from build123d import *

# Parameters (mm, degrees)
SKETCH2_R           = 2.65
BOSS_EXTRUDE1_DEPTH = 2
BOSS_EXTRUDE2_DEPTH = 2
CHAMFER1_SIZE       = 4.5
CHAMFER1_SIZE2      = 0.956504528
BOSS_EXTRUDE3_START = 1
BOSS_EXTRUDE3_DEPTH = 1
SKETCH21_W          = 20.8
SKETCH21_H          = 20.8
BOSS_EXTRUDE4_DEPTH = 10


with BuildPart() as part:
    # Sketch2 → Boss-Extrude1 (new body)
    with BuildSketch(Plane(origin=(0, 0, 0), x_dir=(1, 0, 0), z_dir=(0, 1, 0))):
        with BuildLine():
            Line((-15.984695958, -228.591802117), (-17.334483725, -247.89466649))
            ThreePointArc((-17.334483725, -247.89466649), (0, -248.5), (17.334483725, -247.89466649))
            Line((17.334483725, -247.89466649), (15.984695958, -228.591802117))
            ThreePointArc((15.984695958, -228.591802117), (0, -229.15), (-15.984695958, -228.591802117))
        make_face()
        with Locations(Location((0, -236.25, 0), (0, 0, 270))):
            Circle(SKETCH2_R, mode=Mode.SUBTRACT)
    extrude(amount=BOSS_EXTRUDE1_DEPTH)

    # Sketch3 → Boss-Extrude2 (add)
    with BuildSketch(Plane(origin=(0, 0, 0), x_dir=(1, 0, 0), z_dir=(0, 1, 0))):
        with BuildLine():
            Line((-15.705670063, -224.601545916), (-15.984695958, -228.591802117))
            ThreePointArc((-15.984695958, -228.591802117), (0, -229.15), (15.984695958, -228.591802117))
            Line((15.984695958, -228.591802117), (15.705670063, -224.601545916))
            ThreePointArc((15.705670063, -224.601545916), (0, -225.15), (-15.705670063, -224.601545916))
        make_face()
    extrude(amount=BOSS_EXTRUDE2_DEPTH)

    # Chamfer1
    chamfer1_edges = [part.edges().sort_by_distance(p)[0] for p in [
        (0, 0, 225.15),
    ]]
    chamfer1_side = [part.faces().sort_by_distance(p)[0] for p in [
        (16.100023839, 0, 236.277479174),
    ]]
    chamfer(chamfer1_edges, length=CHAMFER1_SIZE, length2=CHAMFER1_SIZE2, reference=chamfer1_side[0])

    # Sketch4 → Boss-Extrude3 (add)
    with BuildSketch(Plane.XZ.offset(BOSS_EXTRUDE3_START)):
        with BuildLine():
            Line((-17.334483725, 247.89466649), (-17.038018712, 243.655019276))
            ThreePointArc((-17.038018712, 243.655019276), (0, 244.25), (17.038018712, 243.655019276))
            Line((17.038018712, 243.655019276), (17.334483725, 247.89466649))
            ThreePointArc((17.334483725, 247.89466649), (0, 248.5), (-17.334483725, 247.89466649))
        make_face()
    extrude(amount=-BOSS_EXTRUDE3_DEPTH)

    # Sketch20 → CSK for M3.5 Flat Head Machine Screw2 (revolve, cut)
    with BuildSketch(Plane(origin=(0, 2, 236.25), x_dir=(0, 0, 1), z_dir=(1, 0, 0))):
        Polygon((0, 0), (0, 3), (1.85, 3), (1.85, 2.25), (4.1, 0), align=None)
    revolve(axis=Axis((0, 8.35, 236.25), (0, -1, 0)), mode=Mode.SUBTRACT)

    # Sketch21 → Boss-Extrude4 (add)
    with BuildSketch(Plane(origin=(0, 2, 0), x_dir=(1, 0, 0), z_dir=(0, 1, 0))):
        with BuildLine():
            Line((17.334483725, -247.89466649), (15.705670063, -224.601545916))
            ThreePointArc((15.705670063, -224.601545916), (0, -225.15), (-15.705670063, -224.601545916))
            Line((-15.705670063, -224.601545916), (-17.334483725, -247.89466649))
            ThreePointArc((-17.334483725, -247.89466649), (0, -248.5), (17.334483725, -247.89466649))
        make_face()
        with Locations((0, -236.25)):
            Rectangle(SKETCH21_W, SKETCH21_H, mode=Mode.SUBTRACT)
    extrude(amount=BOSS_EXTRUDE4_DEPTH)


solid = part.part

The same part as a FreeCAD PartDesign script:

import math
import FreeCAD as App
import Part
import Sketcher
Q = App.Units.Quantity


def edges_at(feature, points):
    """Names of the edges that pass closest to the given points."""
    edges = feature.Shape.Edges
    near = lambda p: min(range(len(edges)), key=lambda i: edges[i].distToShape(Part.Vertex(*p))[0])
    return sorted({f"Edge{near(p) + 1}" for p in points})

doc = App.newDocument("Part")
body = doc.addObject("PartDesign::Body", "Body")

sketch1 = doc.addObject("Sketcher::SketchObject", "Sketch")
body.addObject(sketch1)
sketch1.AttachmentSupport = (doc.XZ_Plane, [""])
sketch1.MapMode = "FlatFace"
sketch1.addGeometry([
    Part.LineSegment(App.Vector(-15.984696, 228.591802, 0), App.Vector(-17.334484, 247.894666, 0)),
    Part.ArcOfCircle(Part.Circle(App.Vector(0, 0, 0), App.Vector(0, 0, 1), 248.5), math.radians(86), math.radians(94)),
    Part.LineSegment(App.Vector(17.334484, 247.894666, 0), App.Vector(15.984696, 228.591802, 0)),
    Part.ArcOfCircle(Part.Circle(App.Vector(0, 0, 0), App.Vector(0, 0, 1), 229.15), math.radians(86), math.radians(94)),
    Part.Circle(App.Vector(0, 236.25, 0), App.Vector(0, 0, 1), 2.65),
], False)
sketch1.addConstraint([
    Sketcher.Constraint("Coincident", 0, 2, 1, 2),
    Sketcher.Constraint("Coincident", 1, 1, 2, 1),
    Sketcher.Constraint("Coincident", 2, 2, 3, 1),
    Sketcher.Constraint("Coincident", 3, 2, 0, 1),
    Sketcher.Constraint("Coincident", 1, 3, -1, 1),
    Sketcher.Constraint("Coincident", 3, 3, -1, 1),
    Sketcher.Constraint("PointOnObject", 4, 3, -2),
    Sketcher.Constraint("Horizontal", 0, 2, 1, 1),
    Sketcher.Constraint("Horizontal", 2, 2, 3, 2),
    Sketcher.Constraint("Diameter", 4, 5.3),
    Sketcher.Constraint("Radius", 1, 248.5),
    Sketcher.Constraint("Angle", 0, Q("94 deg")),
    Sketcher.Constraint("Radius", 3, 229.15),
    Sketcher.Constraint("DistanceY", -1, 1, 4, 3, 236.25),
    Sketcher.Constraint("DistanceX", 0, 2, 2, 2, 33.31918),
])
pad1 = doc.addObject("PartDesign::Pad", "Pad")
body.addObject(pad1)
pad1.Profile = sketch1
pad1.Length = 2
pad1.Reversed = True

sketch2 = doc.addObject("Sketcher::SketchObject", "Sketch001")
body.addObject(sketch2)
sketch2.AttachmentSupport = (doc.XZ_Plane, [""])
sketch2.MapMode = "FlatFace"
sketch2.addGeometry([
    Part.LineSegment(App.Vector(-15.70567, 224.601546, 0), App.Vector(-15.984696, 228.591802, 0)),
    Part.ArcOfCircle(Part.Circle(App.Vector(0, 0, 0), App.Vector(0, 0, 1), 229.15), math.radians(86), math.radians(94)),
    Part.LineSegment(App.Vector(15.984696, 228.591802, 0), App.Vector(15.70567, 224.601546, 0)),
    Part.ArcOfCircle(Part.Circle(App.Vector(0, 0, 0), App.Vector(0, 0, 1), 225.15), math.radians(86), math.radians(94)),
], False)
sketch2.addConstraint([
    Sketcher.Constraint("Coincident", 0, 2, 1, 2),
    Sketcher.Constraint("Coincident", 1, 1, 2, 1),
    Sketcher.Constraint("Coincident", 2, 2, 3, 1),
    Sketcher.Constraint("Coincident", 3, 2, 0, 1),
    Sketcher.Constraint("Coincident", 1, 3, -1, 1),
    Sketcher.Constraint("Coincident", 3, 3, -1, 1),
    Sketcher.Constraint("Horizontal", 0, 2, 1, 1),
    Sketcher.Constraint("Horizontal", 2, 2, 3, 2),
    Sketcher.Constraint("Angle", 0, Q("94 deg")),
    Sketcher.Constraint("Radius", 1, 229.15),
    Sketcher.Constraint("Radius", 3, 225.15),
    Sketcher.Constraint("DistanceX", -1, 1, 2, 2, 15.70567),
])
pad2 = doc.addObject("PartDesign::Pad", "Pad001")
body.addObject(pad2)
pad2.Profile = sketch2
pad2.Length = 2
pad2.Reversed = True
doc.recompute()

chamfer = doc.addObject("PartDesign::Chamfer", "Chamfer")
body.addObject(chamfer)
chamfer.Base = (pad2, edges_at(pad2, [(0, 0, 225.15)]))
chamfer.ChamferType = "Two distances"
chamfer.Size = 4.5
chamfer.Size2 = 0.956505
chamfer.FlipDirection = True

sketch3 = doc.addObject("Sketcher::SketchObject", "Sketch002")
body.addObject(sketch3)
sketch3.AttachmentSupport = (doc.XZ_Plane, [""])
sketch3.MapMode = "FlatFace"
sketch3.AttachmentOffset = App.Placement(App.Vector(0, 0, 1), App.Rotation())
sketch3.addGeometry([
    Part.LineSegment(App.Vector(-17.334484, 247.894666, 0), App.Vector(-17.038019, 243.655019, 0)),
    Part.ArcOfCircle(Part.Circle(App.Vector(0, 0, 0), App.Vector(0, 0, 1), 244.25), math.radians(86), math.radians(94)),
    Part.LineSegment(App.Vector(17.038019, 243.655019, 0), App.Vector(17.334484, 247.894666, 0)),
    Part.ArcOfCircle(Part.Circle(App.Vector(0, 0, 0), App.Vector(0, 0, 1), 248.5), math.radians(86), math.radians(94)),
], False)
sketch3.addConstraint([
    Sketcher.Constraint("Coincident", 0, 2, 1, 2),
    Sketcher.Constraint("Coincident", 1, 1, 2, 1),
    Sketcher.Constraint("Coincident", 2, 2, 3, 1),
    Sketcher.Constraint("Coincident", 3, 2, 0, 1),
    Sketcher.Constraint("Coincident", 1, 3, -1, 1),
    Sketcher.Constraint("Coincident", 3, 3, -1, 1),
    Sketcher.Constraint("Horizontal", 0, 2, 1, 1),
    Sketcher.Constraint("Horizontal", 2, 2, 3, 2),
    Sketcher.Constraint("Radius", 3, 248.5),
    Sketcher.Constraint("Angle", 0, Q("-86 deg")),
    Sketcher.Constraint("Radius", 1, 244.25),
    Sketcher.Constraint("DistanceX", 0, 2, -1, 1, 17.038019),
])
pad3 = doc.addObject("PartDesign::Pad", "Pad002")
body.addObject(pad3)
pad3.Profile = sketch3
pad3.Length = 1
pad3.Reversed = True

sketch4 = doc.addObject("Sketcher::SketchObject", "Sketch003")
body.addObject(sketch4)
sketch4.AttachmentSupport = (doc.YZ_Plane, [""])
sketch4.MapMode = "FlatFace"
sketch4.addGeometry([
    Part.LineSegment(App.Vector(-1, 236.25, 0), App.Vector(2, 236.25, 0)),
    Part.LineSegment(App.Vector(2, 236.25, 0), App.Vector(2, 240.35, 0)),
    Part.LineSegment(App.Vector(2, 240.35, 0), App.Vector(-0.25, 238.1, 0)),
    Part.LineSegment(App.Vector(-0.25, 238.1, 0), App.Vector(-1, 238.1, 0)),
    Part.LineSegment(App.Vector(-1, 238.1, 0), App.Vector(-1, 236.25, 0)),
], False)
sketch4.addGeometry(Part.LineSegment(App.Vector(2, 236.25, 0), App.Vector(-1, 236.25, 0)), True)
sketch4.addConstraint([
    Sketcher.Constraint("Coincident", 0, 2, 1, 1),
    Sketcher.Constraint("Coincident", 1, 2, 2, 1),
    Sketcher.Constraint("Coincident", 2, 2, 3, 1),
    Sketcher.Constraint("Coincident", 3, 2, 4, 1),
    Sketcher.Constraint("Coincident", 4, 2, 0, 1),
    Sketcher.Constraint("Horizontal", 0),
    Sketcher.Constraint("Vertical", 1),
    Sketcher.Constraint("Horizontal", 3),
    Sketcher.Constraint("Vertical", 4),
    Sketcher.Constraint("Horizontal", 5),
    Sketcher.Constraint("Coincident", 5, 1, 0, 2),
    Sketcher.Constraint("Vertical", 3, 2, 5, 2),
    Sketcher.Constraint("DistanceX", 0, 1, 0, 2, 3.0),
    Sketcher.Constraint("Angle", 2, Q("-135 deg")),
    Sketcher.Constraint("DistanceY", 1, 1, 1, 2, 4.1),
    Sketcher.Constraint("DistanceX", -1, 1, 0, 2, 2.0),
    Sketcher.Constraint("DistanceX", 3, 2, 3, 1, 0.75),
    Sketcher.Constraint("DistanceY", -1, 1, 2, 2, 238.1),
])
groove = doc.addObject("PartDesign::Groove", "Groove")
body.addObject(groove)
groove.Profile = sketch4
groove.ReferenceAxis = (sketch4, ["Axis0"])
groove.Angle = 360

sketch5 = doc.addObject("Sketcher::SketchObject", "Sketch004")
body.addObject(sketch5)
sketch5.AttachmentSupport = (doc.XZ_Plane, [""])
sketch5.MapMode = "FlatFace"
sketch5.AttachmentOffset = App.Placement(App.Vector(0, 0, -2), App.Rotation())
sketch5.addGeometry([
    Part.LineSegment(App.Vector(17.334484, 247.894666, 0), App.Vector(15.70567, 224.601546, 0)),
    Part.ArcOfCircle(Part.Circle(App.Vector(0, 0, 0), App.Vector(0, 0, 1), 225.15), math.radians(86), math.radians(94)),
    Part.LineSegment(App.Vector(-15.70567, 224.601546, 0), App.Vector(-17.334484, 247.894666, 0)),
    Part.ArcOfCircle(Part.Circle(App.Vector(0, 0, 0), App.Vector(0, 0, 1), 248.5), math.radians(86), math.radians(94)),
    Part.LineSegment(App.Vector(10.4, 246.65, 0), App.Vector(-10.4, 246.65, 0)),
    Part.LineSegment(App.Vector(-10.4, 246.65, 0), App.Vector(-10.4, 225.85, 0)),
    Part.LineSegment(App.Vector(-10.4, 225.85, 0), App.Vector(10.4, 225.85, 0)),
    Part.LineSegment(App.Vector(10.4, 225.85, 0), App.Vector(10.4, 246.65, 0)),
], False)
sketch5.addConstraint([
    Sketcher.Constraint("Coincident", 0, 2, 1, 1),
    Sketcher.Constraint("Coincident", 1, 2, 2, 1),
    Sketcher.Constraint("Coincident", 2, 2, 3, 2),
    Sketcher.Constraint("Coincident", 3, 1, 0, 1),
    Sketcher.Constraint("Coincident", 4, 2, 5, 1),
    Sketcher.Constraint("Coincident", 5, 2, 6, 1),
    Sketcher.Constraint("Coincident", 6, 2, 7, 1),
    Sketcher.Constraint("Coincident", 7, 2, 4, 1),
    Sketcher.Constraint("Horizontal", 4),
    Sketcher.Constraint("Vertical", 5),
    Sketcher.Constraint("Horizontal", 6),
    Sketcher.Constraint("Vertical", 7),
    Sketcher.Constraint("Coincident", 1, 3, -1, 1),
    Sketcher.Constraint("Coincident", 3, 3, -1, 1),
    Sketcher.Constraint("Horizontal", 0, 2, 1, 2),
    Sketcher.Constraint("Horizontal", 2, 2, 3, 1),
    Sketcher.Constraint("Equal", 6, 5),
    Sketcher.Constraint("Radius", 3, 248.5),
    Sketcher.Constraint("Angle", 0, Q("-94 deg")),
    Sketcher.Constraint("Radius", 1, 225.15),
    Sketcher.Constraint("DistanceX", 4, 2, 4, 1, 20.8),
    Sketcher.Constraint("DistanceX", 4, 2, -1, 1, 10.4),
    Sketcher.Constraint("DistanceY", -1, 1, 4, 2, 246.65),
    Sketcher.Constraint("DistanceX", -1, 1, 0, 2, 15.70567),
])
pad4 = doc.addObject("PartDesign::Pad", "Pad003")
body.addObject(pad4)
pad4.Profile = sketch5
pad4.Length = 10
pad4.Reversed = True

doc.recompute()
